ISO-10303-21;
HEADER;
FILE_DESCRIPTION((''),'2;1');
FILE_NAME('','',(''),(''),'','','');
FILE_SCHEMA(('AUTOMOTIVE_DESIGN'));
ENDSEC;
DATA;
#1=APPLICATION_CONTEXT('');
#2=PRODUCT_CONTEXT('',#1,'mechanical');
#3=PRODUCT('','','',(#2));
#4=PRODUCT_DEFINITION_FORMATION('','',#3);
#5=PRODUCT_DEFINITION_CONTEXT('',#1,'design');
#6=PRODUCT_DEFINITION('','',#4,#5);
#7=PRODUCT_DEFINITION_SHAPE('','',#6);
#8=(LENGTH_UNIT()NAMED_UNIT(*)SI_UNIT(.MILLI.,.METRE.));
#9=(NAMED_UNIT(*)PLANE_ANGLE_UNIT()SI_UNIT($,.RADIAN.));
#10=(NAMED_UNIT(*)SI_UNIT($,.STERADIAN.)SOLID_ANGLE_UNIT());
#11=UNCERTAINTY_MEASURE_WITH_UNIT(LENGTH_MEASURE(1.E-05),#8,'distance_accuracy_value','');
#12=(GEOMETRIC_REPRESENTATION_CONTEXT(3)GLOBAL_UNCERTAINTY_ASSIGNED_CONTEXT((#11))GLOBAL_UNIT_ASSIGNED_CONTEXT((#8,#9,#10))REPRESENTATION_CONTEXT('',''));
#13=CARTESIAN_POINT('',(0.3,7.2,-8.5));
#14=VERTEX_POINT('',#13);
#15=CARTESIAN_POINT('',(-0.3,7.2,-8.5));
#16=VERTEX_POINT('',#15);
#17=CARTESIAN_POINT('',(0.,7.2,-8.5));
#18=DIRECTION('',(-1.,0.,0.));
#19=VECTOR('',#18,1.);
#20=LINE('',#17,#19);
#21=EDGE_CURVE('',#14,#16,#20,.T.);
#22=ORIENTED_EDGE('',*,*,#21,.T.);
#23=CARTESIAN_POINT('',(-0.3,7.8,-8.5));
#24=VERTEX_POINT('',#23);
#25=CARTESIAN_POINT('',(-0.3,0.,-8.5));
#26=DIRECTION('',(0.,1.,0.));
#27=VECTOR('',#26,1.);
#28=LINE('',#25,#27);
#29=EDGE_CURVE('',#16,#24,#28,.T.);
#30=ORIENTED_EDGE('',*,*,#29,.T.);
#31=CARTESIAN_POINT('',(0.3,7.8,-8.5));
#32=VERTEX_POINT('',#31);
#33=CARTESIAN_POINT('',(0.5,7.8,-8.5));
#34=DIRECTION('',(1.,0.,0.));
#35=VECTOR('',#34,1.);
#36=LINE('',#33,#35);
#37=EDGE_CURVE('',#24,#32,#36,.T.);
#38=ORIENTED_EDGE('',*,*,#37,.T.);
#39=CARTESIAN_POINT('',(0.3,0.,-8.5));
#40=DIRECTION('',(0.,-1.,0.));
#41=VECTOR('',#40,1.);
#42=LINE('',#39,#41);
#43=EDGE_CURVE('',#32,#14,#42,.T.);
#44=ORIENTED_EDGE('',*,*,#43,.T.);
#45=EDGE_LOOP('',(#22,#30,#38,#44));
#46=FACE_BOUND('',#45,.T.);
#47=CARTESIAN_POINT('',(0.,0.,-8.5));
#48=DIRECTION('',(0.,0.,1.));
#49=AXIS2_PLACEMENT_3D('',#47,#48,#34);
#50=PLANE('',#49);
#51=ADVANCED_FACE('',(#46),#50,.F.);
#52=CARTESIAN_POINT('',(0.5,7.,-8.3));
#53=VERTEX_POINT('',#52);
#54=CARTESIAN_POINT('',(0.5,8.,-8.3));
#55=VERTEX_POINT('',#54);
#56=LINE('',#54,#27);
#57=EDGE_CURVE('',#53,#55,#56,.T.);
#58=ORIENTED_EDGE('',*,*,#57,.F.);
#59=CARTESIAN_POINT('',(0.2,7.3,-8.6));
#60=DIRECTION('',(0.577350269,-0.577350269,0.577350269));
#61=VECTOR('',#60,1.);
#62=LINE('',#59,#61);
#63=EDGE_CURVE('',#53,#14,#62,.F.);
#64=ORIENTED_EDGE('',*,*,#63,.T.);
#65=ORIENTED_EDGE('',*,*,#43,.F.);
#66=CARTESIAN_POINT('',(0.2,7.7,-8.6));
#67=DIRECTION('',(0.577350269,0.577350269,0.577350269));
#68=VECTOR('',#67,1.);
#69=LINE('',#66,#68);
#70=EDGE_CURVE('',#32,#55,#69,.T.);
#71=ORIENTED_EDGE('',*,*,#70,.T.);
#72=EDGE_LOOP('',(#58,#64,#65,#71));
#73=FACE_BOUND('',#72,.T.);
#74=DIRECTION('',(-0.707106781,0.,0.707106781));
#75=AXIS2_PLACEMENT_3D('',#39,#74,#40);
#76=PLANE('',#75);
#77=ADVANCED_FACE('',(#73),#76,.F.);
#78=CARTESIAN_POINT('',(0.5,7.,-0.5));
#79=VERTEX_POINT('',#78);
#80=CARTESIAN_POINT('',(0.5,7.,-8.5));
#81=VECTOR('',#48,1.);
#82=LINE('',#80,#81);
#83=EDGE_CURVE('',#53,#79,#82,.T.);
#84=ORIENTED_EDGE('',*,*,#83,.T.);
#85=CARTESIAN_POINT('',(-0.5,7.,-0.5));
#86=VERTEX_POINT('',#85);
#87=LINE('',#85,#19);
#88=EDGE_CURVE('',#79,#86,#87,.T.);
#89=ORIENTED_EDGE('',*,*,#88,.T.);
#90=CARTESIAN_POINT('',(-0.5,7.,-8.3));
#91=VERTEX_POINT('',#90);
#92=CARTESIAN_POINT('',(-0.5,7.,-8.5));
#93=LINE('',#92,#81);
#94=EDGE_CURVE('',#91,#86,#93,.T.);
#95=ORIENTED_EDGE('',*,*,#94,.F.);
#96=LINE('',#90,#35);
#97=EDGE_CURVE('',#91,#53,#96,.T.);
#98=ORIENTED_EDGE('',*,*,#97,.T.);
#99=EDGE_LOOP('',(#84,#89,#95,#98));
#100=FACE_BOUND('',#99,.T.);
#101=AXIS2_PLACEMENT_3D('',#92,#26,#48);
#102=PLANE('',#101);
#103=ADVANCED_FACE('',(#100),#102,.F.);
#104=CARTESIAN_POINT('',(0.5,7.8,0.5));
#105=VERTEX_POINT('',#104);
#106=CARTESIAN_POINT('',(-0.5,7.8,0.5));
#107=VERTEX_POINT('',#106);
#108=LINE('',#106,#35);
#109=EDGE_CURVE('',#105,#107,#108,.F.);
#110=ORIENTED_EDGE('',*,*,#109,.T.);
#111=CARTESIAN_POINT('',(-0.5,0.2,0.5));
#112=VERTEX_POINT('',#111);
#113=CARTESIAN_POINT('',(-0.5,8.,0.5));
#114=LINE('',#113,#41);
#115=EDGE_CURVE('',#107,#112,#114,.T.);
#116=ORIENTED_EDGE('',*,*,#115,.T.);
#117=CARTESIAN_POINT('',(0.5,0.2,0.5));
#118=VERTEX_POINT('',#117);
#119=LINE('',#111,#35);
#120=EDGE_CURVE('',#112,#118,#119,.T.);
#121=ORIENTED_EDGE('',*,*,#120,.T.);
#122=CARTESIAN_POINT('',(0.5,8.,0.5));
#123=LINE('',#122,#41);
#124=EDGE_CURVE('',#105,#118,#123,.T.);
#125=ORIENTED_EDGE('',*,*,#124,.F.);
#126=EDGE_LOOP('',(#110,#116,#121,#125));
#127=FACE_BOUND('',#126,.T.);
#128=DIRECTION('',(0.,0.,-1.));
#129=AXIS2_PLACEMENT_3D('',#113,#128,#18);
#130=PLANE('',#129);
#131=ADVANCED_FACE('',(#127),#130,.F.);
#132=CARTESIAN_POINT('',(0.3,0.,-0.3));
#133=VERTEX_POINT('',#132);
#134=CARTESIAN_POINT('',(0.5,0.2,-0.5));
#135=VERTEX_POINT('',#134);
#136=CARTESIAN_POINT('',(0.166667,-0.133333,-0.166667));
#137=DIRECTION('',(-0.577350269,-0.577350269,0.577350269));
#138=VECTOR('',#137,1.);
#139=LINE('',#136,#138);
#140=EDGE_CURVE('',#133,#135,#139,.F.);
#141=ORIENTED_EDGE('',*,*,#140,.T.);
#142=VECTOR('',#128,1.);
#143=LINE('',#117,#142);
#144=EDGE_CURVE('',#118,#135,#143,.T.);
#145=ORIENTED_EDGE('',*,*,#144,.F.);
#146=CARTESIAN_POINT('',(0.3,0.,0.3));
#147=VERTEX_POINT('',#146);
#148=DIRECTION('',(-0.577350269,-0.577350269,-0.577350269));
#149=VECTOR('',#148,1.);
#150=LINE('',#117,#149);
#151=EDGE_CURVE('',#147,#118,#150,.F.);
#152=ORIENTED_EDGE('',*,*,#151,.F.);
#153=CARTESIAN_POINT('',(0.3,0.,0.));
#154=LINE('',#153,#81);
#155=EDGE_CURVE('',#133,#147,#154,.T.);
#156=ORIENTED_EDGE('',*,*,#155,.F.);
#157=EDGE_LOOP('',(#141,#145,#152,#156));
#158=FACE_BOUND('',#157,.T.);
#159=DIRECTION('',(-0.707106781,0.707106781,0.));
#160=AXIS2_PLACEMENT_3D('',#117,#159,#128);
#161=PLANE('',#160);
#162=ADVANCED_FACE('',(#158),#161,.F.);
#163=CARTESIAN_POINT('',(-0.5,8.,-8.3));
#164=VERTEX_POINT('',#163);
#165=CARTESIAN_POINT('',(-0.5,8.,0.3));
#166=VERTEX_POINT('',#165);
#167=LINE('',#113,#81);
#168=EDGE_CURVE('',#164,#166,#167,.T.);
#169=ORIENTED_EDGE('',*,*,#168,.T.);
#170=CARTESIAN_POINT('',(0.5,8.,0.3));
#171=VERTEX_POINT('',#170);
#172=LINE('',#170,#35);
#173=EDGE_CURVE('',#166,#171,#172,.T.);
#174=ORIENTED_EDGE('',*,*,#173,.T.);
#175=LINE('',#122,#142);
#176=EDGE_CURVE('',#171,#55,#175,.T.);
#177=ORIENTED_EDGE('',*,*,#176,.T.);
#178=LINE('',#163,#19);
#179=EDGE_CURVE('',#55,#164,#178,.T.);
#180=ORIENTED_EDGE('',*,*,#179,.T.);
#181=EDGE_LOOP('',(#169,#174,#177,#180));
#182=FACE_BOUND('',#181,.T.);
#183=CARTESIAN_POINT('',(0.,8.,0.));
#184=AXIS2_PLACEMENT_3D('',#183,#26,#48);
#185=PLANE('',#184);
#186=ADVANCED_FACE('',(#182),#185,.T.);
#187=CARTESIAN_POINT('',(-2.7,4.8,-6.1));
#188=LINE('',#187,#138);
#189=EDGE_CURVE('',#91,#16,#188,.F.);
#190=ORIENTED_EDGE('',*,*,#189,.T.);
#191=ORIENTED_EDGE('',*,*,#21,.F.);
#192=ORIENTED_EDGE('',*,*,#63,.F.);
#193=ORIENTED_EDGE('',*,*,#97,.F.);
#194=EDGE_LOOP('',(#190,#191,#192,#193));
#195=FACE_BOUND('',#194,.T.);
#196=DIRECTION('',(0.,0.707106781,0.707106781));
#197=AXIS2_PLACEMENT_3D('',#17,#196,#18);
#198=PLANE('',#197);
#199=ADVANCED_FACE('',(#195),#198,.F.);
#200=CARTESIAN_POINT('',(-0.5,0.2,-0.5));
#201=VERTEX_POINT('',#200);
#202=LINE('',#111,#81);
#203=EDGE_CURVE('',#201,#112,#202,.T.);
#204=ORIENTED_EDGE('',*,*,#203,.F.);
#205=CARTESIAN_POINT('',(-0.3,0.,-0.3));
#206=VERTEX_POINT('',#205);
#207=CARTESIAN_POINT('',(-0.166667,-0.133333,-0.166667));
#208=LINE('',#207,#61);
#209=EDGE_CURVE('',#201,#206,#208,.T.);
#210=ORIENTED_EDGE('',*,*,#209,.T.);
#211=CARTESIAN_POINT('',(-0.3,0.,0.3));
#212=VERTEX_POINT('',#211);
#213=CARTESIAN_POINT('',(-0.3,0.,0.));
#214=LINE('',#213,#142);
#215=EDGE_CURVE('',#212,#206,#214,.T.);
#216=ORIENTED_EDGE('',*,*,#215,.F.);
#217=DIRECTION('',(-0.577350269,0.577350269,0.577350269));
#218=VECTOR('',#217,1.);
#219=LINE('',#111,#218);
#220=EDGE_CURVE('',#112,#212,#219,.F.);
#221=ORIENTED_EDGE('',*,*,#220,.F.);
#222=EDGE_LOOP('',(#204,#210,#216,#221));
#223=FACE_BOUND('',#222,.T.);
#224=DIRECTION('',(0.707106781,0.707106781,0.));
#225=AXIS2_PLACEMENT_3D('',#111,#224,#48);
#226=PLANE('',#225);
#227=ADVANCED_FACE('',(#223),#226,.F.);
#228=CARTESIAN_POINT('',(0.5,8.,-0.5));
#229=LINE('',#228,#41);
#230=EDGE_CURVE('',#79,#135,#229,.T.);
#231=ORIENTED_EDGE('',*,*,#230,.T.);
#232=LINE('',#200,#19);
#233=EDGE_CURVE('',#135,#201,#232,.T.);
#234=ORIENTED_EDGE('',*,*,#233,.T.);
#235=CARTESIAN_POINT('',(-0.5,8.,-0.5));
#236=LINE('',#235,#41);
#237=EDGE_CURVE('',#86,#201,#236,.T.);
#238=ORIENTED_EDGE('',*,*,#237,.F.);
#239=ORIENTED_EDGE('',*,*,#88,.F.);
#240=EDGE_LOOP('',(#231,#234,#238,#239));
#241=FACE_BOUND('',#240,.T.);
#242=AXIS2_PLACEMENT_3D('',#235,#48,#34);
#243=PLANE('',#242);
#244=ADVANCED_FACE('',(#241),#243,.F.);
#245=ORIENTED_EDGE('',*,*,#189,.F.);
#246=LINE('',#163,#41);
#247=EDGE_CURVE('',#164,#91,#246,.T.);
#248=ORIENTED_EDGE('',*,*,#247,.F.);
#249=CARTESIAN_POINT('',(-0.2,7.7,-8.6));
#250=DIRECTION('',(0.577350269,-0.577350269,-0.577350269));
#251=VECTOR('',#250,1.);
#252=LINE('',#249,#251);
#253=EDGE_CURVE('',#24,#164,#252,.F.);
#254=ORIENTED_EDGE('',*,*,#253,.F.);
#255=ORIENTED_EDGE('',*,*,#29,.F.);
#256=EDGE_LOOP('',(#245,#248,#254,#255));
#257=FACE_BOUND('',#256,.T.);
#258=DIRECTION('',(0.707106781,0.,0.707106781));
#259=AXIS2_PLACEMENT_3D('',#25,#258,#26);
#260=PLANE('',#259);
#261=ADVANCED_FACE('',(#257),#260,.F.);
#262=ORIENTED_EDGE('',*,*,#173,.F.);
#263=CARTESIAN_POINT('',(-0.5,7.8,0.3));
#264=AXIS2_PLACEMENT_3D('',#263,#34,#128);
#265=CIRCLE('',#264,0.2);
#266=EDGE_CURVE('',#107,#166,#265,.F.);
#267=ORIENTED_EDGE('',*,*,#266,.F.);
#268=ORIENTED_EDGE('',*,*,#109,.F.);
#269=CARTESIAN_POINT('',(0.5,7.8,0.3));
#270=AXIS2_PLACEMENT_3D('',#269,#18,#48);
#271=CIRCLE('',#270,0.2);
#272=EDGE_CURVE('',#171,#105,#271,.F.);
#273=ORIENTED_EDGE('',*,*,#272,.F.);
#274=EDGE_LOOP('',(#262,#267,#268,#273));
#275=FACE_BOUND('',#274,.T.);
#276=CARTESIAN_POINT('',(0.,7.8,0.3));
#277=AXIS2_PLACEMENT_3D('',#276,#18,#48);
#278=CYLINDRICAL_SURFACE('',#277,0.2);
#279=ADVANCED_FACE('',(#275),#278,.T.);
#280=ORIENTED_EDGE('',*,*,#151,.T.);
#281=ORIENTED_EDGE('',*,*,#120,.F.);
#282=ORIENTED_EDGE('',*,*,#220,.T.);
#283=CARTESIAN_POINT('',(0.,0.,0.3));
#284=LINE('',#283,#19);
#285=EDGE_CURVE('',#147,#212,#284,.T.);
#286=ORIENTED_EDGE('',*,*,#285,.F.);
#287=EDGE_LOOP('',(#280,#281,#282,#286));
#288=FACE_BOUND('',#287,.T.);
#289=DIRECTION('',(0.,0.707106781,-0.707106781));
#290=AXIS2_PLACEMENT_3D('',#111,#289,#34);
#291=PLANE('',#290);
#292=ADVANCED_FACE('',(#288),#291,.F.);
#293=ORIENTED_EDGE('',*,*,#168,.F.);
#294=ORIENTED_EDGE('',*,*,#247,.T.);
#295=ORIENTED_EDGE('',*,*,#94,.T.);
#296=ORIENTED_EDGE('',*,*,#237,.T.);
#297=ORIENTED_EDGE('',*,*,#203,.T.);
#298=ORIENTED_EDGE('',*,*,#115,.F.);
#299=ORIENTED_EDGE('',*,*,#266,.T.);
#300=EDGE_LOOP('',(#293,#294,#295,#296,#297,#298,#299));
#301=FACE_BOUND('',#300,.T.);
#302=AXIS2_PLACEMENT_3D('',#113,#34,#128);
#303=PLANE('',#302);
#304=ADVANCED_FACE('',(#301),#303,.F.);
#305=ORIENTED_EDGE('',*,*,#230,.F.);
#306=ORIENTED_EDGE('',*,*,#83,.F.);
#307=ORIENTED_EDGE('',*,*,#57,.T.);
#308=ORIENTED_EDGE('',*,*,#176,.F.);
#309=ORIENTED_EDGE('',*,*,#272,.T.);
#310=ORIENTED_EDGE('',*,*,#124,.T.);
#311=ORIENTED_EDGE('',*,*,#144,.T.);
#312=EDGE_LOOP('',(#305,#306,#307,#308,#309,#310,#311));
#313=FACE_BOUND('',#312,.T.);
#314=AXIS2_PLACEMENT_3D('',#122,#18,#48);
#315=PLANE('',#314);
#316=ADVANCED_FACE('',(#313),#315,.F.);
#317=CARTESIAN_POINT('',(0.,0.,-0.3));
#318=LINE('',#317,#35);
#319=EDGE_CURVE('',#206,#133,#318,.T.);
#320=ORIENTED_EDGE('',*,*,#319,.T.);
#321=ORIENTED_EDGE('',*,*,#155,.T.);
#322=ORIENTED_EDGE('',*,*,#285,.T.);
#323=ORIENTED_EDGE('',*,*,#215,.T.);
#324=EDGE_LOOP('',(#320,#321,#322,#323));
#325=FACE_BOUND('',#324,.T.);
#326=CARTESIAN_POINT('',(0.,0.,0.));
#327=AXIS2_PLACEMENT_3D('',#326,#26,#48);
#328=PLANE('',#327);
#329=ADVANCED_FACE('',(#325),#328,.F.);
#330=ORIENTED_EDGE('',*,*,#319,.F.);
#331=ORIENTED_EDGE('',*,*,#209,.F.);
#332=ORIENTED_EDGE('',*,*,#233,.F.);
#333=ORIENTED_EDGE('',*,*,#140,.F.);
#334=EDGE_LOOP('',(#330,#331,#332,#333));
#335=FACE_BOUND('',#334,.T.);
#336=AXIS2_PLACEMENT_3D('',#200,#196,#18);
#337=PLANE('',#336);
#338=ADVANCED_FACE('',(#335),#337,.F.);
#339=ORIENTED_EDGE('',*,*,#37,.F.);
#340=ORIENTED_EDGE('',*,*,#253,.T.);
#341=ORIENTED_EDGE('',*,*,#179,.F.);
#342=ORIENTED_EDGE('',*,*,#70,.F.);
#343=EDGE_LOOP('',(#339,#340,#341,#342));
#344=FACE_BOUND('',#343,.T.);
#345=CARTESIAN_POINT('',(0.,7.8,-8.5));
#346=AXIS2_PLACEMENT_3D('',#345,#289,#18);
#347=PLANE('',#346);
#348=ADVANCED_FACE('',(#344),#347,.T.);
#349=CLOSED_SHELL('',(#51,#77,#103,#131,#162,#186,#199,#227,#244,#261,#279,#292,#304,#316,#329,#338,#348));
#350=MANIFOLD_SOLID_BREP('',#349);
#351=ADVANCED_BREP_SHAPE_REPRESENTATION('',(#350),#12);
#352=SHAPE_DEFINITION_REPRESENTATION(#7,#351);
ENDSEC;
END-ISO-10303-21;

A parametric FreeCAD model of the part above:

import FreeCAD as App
import Part
import Sketcher

V = App.Vector
Q = App.Units.Quantity


def edges_at(feature, points):
    """Names of the edges that pass closest to the given points."""
    edges = feature.Shape.Edges
    near = lambda p: min(range(len(edges)), key=lambda i: edges[i].distToShape(Part.Vertex(*p))[0])
    return sorted({f"Edge{near(p) + 1}" for p in points})

doc = App.newDocument("Part")
body = doc.addObject("PartDesign::Body", "Body")

sketch1 = body.newObject("Sketcher::SketchObject", "Sketch")
sketch1.AttachmentSupport = (doc.getObject("XZ_Plane"), [""])
sketch1.MapMode = "FlatFace"
sketch1.addGeometry([
    Part.LineSegment(V(-0.5, -0.5, 0), V(-0.5, 0.5, 0)),
    Part.LineSegment(V(-0.5, 0.5, 0), V(0.5, 0.5, 0)),
    Part.LineSegment(V(0.5, 0.5, 0), V(0.5, -0.5, 0)),
    Part.LineSegment(V(0.5, -0.5, 0), V(-0.5, -0.5, 0)),
], False)
sketch1.addConstraint([
    Sketcher.Constraint("Coincident", 0, 2, 1, 1),
    Sketcher.Constraint("Coincident", 1, 2, 2, 1),
    Sketcher.Constraint("Coincident", 2, 2, 3, 1),
    Sketcher.Constraint("Coincident", 3, 2, 0, 1),
    Sketcher.Constraint("Vertical", 0),
    Sketcher.Constraint("Horizontal", 1),
    Sketcher.Constraint("Vertical", 2),
    Sketcher.Constraint("Horizontal", 3),
    Sketcher.Constraint("Symmetric", 0, 2, 2, 2, -1, 1),
    Sketcher.Constraint("Equal", 3, 0),
    Sketcher.Constraint("DistanceX", 1, 1, 1, 2, Q("1 mm")),
])
pad1 = body.newObject("PartDesign::Pad", "Pad")
pad1.Profile = sketch1
pad1.Length = 8
pad1.Reversed = True

sketch2 = body.newObject("Sketcher::SketchObject", "Sketch001")
sketch2.AttachmentSupport = (doc.getObject("XY_Plane"), [""])
sketch2.MapMode = "FlatFace"
sketch2.AttachmentOffset = App.Placement(V(0, 0, -0.5), App.Rotation())
sketch2.addGeometry([
    Part.LineSegment(V(0.5, 8, 0), V(0.5, 7, 0)),
    Part.LineSegment(V(0.5, 7, 0), V(-0.5, 7, 0)),
    Part.LineSegment(V(-0.5, 7, 0), V(-0.5, 8, 0)),
    Part.LineSegment(V(-0.5, 8, 0), V(0.5, 8, 0)),
], False)
sketch2.addConstraint([
    Sketcher.Constraint("Coincident", 0, 2, 1, 1),
    Sketcher.Constraint("Coincident", 1, 2, 2, 1),
    Sketcher.Constraint("Coincident", 2, 2, 3, 1),
    Sketcher.Constraint("Coincident", 3, 2, 0, 1),
    Sketcher.Constraint("Vertical", 0),
    Sketcher.Constraint("Horizontal", 1),
    Sketcher.Constraint("Vertical", 2),
    Sketcher.Constraint("Horizontal", 3),
    Sketcher.Constraint("Equal", 3, 0),
    Sketcher.Constraint("DistanceX", 1, 2, 1, 1, Q("1 mm")),
    Sketcher.Constraint("DistanceY", -1, 1, 0, 2, Q("7 mm")),
    Sketcher.Constraint("DistanceX", -1, 1, 0, 2, Q("0.5 mm")),
])
pad2 = body.newObject("PartDesign::Pad", "Pad001")
pad2.Profile = sketch2
pad2.Length = 8
pad2.Reversed = True
doc.recompute()

fillet = body.newObject("PartDesign::Fillet", "Fillet")
fillet.Base = (pad2, edges_at(pad2, [(0, 8, 0.5)]))
fillet.Radius = 0.2
doc.recompute()

chamfer = body.newObject("PartDesign::Chamfer", "Chamfer")
chamfer.Base = (fillet, edges_at(fillet, [
    (0.5, 7.5, -8.5),
    (0, 7, -8.5),
    (-0.5, 7.5, -8.5),
    (0, 8, -8.5),
]))
chamfer.Size = 0.2
doc.recompute()

chamfer2 = body.newObject("PartDesign::Chamfer", "Chamfer001")
chamfer2.Base = (chamfer, edges_at(chamfer, [
    (-0.5, 0, 0),
    (0, 0, -0.5),
    (0.5, 0, 0),
    (0, 0, 0.5),
]))
chamfer2.Size = 0.2

doc.recompute()
